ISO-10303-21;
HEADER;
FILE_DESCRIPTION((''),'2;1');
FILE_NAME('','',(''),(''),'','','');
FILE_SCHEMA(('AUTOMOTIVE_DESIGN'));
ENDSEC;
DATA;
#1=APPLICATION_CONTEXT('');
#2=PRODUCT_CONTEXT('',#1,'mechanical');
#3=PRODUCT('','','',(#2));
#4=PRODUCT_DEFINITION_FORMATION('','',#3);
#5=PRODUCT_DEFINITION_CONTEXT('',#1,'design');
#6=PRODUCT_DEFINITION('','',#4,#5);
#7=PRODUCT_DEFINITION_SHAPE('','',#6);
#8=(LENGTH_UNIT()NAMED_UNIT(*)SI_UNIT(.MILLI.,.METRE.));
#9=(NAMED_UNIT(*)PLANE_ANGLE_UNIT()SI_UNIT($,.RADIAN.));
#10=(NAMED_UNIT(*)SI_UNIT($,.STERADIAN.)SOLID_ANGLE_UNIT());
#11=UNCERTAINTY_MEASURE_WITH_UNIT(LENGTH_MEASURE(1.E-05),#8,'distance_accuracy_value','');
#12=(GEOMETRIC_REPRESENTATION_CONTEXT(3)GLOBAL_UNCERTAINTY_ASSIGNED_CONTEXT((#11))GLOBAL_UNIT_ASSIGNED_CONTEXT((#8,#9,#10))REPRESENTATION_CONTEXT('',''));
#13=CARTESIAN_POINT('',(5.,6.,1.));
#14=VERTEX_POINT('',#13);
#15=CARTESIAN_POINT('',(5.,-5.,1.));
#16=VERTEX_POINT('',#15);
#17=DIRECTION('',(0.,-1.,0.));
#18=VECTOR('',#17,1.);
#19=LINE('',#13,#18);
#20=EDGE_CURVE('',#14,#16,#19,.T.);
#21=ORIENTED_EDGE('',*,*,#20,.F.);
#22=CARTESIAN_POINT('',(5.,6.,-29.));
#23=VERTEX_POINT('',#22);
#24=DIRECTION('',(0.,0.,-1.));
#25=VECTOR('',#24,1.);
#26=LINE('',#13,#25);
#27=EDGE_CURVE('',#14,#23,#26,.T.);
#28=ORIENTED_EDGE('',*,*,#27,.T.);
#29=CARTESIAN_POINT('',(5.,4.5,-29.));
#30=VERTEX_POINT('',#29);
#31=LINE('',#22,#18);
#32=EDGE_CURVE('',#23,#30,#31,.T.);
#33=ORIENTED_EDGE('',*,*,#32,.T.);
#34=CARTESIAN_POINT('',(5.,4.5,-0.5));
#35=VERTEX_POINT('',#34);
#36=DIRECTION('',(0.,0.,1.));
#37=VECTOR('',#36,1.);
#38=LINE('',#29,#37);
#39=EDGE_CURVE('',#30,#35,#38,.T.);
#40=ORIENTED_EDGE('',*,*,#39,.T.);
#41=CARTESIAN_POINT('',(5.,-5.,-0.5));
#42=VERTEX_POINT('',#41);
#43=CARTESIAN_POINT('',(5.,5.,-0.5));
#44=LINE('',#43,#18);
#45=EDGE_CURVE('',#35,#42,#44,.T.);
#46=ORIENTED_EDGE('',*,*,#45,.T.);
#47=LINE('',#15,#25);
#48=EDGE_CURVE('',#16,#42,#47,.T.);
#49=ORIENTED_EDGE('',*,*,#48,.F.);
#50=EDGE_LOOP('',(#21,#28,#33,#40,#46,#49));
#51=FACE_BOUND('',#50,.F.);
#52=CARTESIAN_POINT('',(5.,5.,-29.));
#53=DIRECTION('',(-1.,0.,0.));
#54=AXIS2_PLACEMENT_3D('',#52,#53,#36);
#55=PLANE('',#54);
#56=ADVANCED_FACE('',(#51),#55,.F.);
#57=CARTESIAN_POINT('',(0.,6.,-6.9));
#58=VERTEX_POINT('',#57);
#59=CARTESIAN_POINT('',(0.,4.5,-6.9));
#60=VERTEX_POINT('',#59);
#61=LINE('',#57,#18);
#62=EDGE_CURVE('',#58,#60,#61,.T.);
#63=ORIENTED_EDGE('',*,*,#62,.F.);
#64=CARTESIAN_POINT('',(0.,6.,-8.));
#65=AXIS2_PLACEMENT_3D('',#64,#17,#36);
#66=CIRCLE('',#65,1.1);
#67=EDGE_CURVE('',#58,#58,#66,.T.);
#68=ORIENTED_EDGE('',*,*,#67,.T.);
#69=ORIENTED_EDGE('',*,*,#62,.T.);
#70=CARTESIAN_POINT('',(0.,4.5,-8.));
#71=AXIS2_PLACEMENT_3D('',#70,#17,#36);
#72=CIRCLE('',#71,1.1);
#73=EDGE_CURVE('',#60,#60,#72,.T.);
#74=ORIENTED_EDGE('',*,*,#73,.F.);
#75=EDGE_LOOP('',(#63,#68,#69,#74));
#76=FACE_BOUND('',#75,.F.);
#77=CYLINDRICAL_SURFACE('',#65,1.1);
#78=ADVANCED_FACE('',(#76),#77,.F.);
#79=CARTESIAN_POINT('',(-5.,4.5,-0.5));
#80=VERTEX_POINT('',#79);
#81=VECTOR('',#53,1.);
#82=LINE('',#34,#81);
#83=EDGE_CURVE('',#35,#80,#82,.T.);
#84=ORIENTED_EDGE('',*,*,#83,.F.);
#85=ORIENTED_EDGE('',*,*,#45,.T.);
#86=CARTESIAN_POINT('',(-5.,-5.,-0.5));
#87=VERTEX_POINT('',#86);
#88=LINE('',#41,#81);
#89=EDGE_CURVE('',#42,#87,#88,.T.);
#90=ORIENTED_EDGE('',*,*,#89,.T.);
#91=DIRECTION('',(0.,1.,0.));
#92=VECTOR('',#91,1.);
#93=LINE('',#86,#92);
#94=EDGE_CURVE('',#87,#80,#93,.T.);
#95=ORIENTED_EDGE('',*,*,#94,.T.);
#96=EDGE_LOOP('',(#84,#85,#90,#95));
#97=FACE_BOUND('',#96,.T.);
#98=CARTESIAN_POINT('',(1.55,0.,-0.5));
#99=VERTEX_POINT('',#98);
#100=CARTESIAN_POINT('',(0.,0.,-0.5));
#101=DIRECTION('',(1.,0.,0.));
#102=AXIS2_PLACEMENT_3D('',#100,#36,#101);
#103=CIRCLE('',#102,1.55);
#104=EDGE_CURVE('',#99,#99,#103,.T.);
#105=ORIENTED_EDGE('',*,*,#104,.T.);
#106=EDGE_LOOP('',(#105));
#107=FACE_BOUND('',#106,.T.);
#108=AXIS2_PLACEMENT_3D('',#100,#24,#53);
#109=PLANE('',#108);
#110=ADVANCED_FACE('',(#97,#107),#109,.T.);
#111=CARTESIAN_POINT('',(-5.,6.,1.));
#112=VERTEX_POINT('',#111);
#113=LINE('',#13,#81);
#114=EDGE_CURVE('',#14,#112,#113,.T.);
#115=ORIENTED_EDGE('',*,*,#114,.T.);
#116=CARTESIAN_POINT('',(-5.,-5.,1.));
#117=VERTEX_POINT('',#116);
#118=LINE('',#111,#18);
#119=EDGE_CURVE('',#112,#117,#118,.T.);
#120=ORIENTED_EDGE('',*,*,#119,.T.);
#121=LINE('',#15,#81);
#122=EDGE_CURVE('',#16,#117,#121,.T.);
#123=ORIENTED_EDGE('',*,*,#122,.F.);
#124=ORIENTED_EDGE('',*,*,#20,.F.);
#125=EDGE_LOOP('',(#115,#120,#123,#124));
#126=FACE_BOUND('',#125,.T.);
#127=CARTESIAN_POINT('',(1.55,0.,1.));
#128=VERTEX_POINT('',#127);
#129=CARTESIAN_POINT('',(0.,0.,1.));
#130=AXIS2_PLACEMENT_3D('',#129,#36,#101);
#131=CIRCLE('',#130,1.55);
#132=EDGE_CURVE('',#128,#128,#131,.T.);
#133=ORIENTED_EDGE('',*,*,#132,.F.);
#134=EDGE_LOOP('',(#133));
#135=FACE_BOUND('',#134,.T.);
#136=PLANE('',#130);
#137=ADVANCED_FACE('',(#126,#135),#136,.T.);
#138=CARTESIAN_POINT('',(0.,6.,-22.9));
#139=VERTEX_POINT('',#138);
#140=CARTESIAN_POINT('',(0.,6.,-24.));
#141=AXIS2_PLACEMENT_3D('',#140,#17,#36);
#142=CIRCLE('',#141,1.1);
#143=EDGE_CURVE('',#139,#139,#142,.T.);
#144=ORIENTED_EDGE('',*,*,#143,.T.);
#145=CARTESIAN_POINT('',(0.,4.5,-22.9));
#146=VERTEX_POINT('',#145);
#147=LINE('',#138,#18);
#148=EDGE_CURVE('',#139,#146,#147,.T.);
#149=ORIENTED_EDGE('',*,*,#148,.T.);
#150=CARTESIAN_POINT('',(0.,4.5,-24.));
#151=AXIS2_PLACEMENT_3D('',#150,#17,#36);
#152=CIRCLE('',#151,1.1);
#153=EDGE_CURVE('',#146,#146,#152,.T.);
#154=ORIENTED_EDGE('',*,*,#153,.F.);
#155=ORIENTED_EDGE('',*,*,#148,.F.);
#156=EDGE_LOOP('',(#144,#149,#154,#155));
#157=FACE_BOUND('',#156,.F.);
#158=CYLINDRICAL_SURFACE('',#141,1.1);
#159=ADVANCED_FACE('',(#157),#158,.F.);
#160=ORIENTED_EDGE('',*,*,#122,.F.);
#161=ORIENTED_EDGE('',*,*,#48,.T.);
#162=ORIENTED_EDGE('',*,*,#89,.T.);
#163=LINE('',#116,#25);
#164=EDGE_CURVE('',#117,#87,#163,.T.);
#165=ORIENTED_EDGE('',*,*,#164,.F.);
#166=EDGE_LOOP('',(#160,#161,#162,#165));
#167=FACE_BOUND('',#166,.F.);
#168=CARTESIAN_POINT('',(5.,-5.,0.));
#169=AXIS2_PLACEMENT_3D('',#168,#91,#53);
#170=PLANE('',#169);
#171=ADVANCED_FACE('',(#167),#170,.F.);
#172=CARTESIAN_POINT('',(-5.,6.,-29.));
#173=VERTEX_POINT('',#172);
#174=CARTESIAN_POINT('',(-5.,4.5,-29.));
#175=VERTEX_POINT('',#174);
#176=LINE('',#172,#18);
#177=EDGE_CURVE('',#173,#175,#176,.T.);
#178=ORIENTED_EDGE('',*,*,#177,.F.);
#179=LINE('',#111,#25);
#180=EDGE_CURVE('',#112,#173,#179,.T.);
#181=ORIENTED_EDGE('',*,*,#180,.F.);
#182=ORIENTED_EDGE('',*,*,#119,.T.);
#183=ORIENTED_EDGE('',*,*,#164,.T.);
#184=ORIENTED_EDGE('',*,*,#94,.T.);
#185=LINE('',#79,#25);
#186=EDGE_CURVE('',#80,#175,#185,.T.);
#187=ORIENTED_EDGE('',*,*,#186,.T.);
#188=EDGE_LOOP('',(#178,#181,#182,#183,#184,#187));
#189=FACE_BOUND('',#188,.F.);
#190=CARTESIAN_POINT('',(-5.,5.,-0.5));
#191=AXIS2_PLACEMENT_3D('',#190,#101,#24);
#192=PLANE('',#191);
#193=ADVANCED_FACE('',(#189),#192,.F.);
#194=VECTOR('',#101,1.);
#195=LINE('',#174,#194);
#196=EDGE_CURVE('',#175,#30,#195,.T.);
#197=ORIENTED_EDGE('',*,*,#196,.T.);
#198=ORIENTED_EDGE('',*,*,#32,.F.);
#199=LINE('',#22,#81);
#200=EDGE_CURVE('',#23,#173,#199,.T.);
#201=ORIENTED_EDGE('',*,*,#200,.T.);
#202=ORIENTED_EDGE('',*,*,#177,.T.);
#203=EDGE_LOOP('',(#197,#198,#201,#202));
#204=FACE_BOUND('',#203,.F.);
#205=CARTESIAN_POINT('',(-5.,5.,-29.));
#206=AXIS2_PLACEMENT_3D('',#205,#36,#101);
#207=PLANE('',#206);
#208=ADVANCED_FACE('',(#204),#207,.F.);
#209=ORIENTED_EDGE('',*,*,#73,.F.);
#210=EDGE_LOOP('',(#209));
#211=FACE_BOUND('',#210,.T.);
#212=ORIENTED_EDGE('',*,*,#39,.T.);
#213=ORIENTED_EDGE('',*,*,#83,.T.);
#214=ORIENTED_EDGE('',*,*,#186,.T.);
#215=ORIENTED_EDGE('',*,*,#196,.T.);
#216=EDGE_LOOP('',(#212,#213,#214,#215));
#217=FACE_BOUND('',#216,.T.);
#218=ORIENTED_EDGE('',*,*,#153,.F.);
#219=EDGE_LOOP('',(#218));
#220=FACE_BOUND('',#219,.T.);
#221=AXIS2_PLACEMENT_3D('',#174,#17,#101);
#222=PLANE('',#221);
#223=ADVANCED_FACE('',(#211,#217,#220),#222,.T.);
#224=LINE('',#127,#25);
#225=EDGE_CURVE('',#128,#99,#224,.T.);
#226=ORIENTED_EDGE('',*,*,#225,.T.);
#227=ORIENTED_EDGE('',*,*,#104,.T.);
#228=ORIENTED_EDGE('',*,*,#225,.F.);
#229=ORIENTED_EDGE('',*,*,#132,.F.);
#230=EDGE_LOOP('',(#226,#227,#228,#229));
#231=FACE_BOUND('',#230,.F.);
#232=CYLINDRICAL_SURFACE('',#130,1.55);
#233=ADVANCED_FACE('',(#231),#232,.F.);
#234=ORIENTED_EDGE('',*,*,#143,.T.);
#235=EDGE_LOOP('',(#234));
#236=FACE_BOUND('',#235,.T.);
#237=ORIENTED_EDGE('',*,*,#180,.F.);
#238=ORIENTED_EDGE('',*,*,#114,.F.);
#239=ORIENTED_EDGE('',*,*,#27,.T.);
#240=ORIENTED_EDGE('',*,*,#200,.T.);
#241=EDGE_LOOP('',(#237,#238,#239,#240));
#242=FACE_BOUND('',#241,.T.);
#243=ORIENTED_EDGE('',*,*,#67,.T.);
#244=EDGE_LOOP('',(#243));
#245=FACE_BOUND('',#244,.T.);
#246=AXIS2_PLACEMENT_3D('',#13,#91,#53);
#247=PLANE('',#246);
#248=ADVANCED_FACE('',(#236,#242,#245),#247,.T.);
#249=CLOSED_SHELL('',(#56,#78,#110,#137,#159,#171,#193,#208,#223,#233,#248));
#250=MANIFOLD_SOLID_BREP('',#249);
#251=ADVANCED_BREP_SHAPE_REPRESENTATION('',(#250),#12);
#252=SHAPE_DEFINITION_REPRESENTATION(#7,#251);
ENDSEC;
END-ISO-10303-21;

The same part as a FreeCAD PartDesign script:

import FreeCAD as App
import Part
import Sketcher
Q = App.Units.Quantity


def add_polygon(sketch, points):
    """Adds a closed chain of lines whose ends are joined by coincident constraints."""
    first, n = sketch.GeometryCount, len(points)
    for a, b in zip(points, points[1:] + points[:1]):
        sketch.addGeometry(Part.LineSegment(App.Vector(*a, 0), App.Vector(*b, 0)), False)
    for i in range(n):
        sketch.addConstraint(Sketcher.Constraint("Coincident", first + i, 2, first + (i + 1) % n, 1))

doc = App.newDocument("Part")
body = doc.addObject("PartDesign::Body", "Body")

sketch1 = doc.addObject("Sketcher::SketchObject", "Sketch")
body.addObject(sketch1)
sketch1.AttachmentSupport = (doc.XY_Plane, [""])
sketch1.MapMode = "FlatFace"
add_polygon(sketch1, [(5, 5), (-5, 5), (-5, -5), (5, -5)])
sketch1.addConstraint(Sketcher.Constraint("Horizontal", 0))
sketch1.addConstraint(Sketcher.Constraint("Vertical", 1))
sketch1.addConstraint(Sketcher.Constraint("Horizontal", 2))
sketch1.addConstraint(Sketcher.Constraint("Vertical", 3))
sketch1.addConstraint(Sketcher.Constraint("Symmetric", 0, 2, 2, 2, -1, 1))
sketch1.addConstraint(Sketcher.Constraint("Equal", 2, 1))
sketch1.addConstraint(Sketcher.Constraint("DistanceX", 0, 2, 0, 1, Q("10 mm")))
pad1 = doc.addObject("PartDesign::Pad", "Pad")
body.addObject(pad1)
pad1.Profile = sketch1
pad1.Length = 1

sketch2 = doc.addObject("Sketcher::SketchObject", "Sketch001")
body.addObject(sketch2)
sketch2.AttachmentSupport = (doc.XY_Plane, [""])
sketch2.MapMode = "FlatFace"
sketch2.AttachmentOffset = App.Placement(App.Vector(0, 0, 1), App.Rotation())
add_polygon(sketch2, [(-5, 6), (-5, 5), (5, 5), (5, 6)])
sketch2.addConstraint(Sketcher.Constraint("Vertical", 0))
sketch2.addConstraint(Sketcher.Constraint("Horizontal", 1))
sketch2.addConstraint(Sketcher.Constraint("Vertical", 2))
sketch2.addConstraint(Sketcher.Constraint("Horizontal", 3))
sketch2.addConstraint(Sketcher.Constraint("DistanceY", 0, 2, 0, 1, Q("1 mm")))
sketch2.addConstraint(Sketcher.Constraint("DistanceX", 1, 1, 1, 2, Q("10 mm")))
sketch2.addConstraint(Sketcher.Constraint("DistanceX", 0, 2, -1, 1, Q("5 mm")))
sketch2.addConstraint(Sketcher.Constraint("DistanceY", -1, 1, 0, 2, Q("5 mm")))
pad2 = doc.addObject("PartDesign::Pad", "Pad001")
body.addObject(pad2)
pad2.Profile = sketch2
pad2.Length = 30
pad2.Reversed = True

sketch3 = doc.addObject("Sketcher::SketchObject", "Sketch002")
body.addObject(sketch3)
sketch3.AttachmentSupport = (doc.XY_Plane, [""])
sketch3.MapMode = "FlatFace"
add_polygon(sketch3, [(5, 5), (5, -5), (-5, -5), (-5, 5)])
sketch3.addConstraint(Sketcher.Constraint("Vertical", 0))
sketch3.addConstraint(Sketcher.Constraint("Horizontal", 1))
sketch3.addConstraint(Sketcher.Constraint("Vertical", 2))
sketch3.addConstraint(Sketcher.Constraint("Horizontal", 3))
sketch3.addConstraint(Sketcher.Constraint("Symmetric", 0, 2, 2, 2, -1, 1))
sketch3.addConstraint(Sketcher.Constraint("Equal", 3, 0))
sketch3.addConstraint(Sketcher.Constraint("DistanceX", 1, 2, 1, 1, Q("10 mm")))
pad3 = doc.addObject("PartDesign::Pad", "Pad002")
body.addObject(pad3)
pad3.Profile = sketch3
pad3.Length = 0.5
pad3.Reversed = True

sketch4 = doc.addObject("Sketcher::SketchObject", "Sketch003")
body.addObject(sketch4)
sketch4.AttachmentSupport = (doc.XY_Plane, [""])
sketch4.MapMode = "FlatFace"
sketch4.AttachmentOffset = App.Placement(App.Vector(0, 0, 1), App.Rotation())
sketch4.addGeometry(Part.Circle(App.Vector(0, 0, 0), App.Vector(0, 0, 1), 1.6), False)
sketch4.addConstraint(Sketcher.Constraint("Coincident", 0, 3, -1, 1))
sketch4.addConstraint(Sketcher.Constraint("Diameter", 0, Q("3.1 mm")))
pocket1 = doc.addObject("PartDesign::Pocket", "Pocket")
body.addObject(pocket1)
pocket1.Profile = sketch4
pocket1.Length = 3

sketch5 = doc.addObject("Sketcher::SketchObject", "Sketch004")
body.addObject(sketch5)
sketch5.AttachmentSupport = (doc.XZ_Plane, [""])
sketch5.MapMode = "FlatFace"
sketch5.AttachmentOffset = App.Placement(App.Vector(0, 0, -5), App.Rotation())
add_polygon(sketch5, [(-5, 0), (-5, -29), (5, -29), (5, 0)])
sketch5.addConstraint(Sketcher.Constraint("Vertical", 0))
sketch5.addConstraint(Sketcher.Constraint("Horizontal", 1))
sketch5.addConstraint(Sketcher.Constraint("Vertical", 2))
sketch5.addConstraint(Sketcher.Constraint("Horizontal", 3))
sketch5.addConstraint(Sketcher.Constraint("DistanceX", 1, 1, 1, 2, Q("10 mm")))
sketch5.addConstraint(Sketcher.Constraint("DistanceY", 0, 2, 0, 1, Q("28.5 mm")))
sketch5.addConstraint(Sketcher.Constraint("DistanceX", 0, 2, -1, 1, Q("5 mm")))
sketch5.addConstraint(Sketcher.Constraint("DistanceY", 0, 2, -1, 1, Q("29 mm")))
pad4 = doc.addObject("PartDesign::Pad", "Pad003")
body.addObject(pad4)
pad4.Profile = sketch5
pad4.Length = 0.5

sketch6 = doc.addObject("Sketcher::SketchObject", "Sketch005")
body.addObject(sketch6)
sketch6.AttachmentSupport = (doc.XZ_Plane, [""])
sketch6.MapMode = "FlatFace"
sketch6.AttachmentOffset = App.Placement(App.Vector(0, 0, -6), App.Rotation())
sketch6.addGeometry(Part.Circle(App.Vector(0, -24, 0), App.Vector(0, 0, 1), 1.1), False)
sketch6.addGeometry(Part.Circle(App.Vector(0, -8, 0), App.Vector(0, 0, 1), 1.1), False)
sketch6.addConstraint(Sketcher.Constraint("Equal", 0, 1))
sketch6.addConstraint(Sketcher.Constraint("PointOnObject", 0, 3, -2))
sketch6.addConstraint(Sketcher.Constraint("PointOnObject", 1, 3, -2))
sketch6.addConstraint(Sketcher.Constraint("Diameter", 0, Q("2.2 mm")))
sketch6.addConstraint(Sketcher.Constraint("DistanceY", 0, 3, -1, 1, Q("24 mm")))
sketch6.addConstraint(Sketcher.Constraint("DistanceY", 1, 3, -1, 1, Q("8 mm")))
doc.recompute()
hole = doc.addObject("PartDesign::Hole", "Hole")
body.addObject(hole)
hole.Profile = sketch6
hole.ThreadType = "None"
hole.Diameter = 2.2
hole.DepthType = "Dimension"
hole.Depth = 8
hole.DrillPoint = "Angled"
hole.DrillPointAngle = 118
hole.Reversed = True

doc.recompute()
